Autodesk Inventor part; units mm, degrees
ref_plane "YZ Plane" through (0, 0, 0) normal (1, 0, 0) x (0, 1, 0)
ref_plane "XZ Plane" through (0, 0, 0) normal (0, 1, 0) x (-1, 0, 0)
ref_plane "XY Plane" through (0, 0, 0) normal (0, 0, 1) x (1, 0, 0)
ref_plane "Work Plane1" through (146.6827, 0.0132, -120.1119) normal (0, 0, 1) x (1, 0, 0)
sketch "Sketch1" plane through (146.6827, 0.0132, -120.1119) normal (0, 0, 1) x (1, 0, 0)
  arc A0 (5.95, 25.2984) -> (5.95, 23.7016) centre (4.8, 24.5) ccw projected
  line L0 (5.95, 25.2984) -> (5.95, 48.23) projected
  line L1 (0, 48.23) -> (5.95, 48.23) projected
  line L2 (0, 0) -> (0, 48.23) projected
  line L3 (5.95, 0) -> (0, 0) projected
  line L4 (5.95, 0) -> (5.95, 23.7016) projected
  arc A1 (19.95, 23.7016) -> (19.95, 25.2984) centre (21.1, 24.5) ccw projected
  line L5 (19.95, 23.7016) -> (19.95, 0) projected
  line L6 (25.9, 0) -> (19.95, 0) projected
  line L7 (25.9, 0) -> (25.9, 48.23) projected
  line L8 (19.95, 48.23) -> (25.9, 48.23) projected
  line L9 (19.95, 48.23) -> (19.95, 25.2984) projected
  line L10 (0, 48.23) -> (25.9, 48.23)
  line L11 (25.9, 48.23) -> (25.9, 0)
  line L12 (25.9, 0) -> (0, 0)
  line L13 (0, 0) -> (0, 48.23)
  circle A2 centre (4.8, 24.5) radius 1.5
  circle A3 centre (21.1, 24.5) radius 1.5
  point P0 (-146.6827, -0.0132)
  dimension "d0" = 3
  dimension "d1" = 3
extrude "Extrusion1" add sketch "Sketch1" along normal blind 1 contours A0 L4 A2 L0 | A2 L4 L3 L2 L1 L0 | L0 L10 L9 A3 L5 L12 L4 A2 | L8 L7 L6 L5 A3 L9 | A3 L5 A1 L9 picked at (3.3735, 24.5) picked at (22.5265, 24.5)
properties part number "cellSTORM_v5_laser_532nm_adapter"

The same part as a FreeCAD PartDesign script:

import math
import FreeCAD as App
import Part
import Sketcher


def add_polygon(sketch, points):
    """Adds a closed chain of lines whose ends are joined by coincident constraints."""
    first, n = sketch.GeometryCount, len(points)
    for a, b in zip(points, points[1:] + points[:1]):
        sketch.addGeometry(Part.LineSegment(App.Vector(*a, 0), App.Vector(*b, 0)), False)
    for i in range(n):
        sketch.addConstraint(Sketcher.Constraint("Coincident", first + i, 2, first + (i + 1) % n, 1))

doc = App.newDocument("Part")
body = doc.addObject("PartDesign::Body", "Body")

# Sketch on XY plane
sketch1 = body.newObject("Sketcher::SketchObject", "Sketch")
sketch1.AttachmentSupport = (doc.getObject("XY_Plane"), [""])
sketch1.MapMode = "FlatFace"
sketch1.AttachmentOffset = App.Placement(App.Vector(0, 0, -120.1119), App.Rotation())
add_polygon(sketch1, [(146.68, 0.01), (172.58, 0.01), (172.58, 48.24), (146.68, 48.24)])  # lines 0-3
sketch1.addGeometry(Part.ArcOfCircle(Part.Circle(App.Vector(151.48, 24.51, 0), App.Vector(0, 0, 1), 1.4), math.radians(35), math.radians(325)), False)  # 4
sketch1.addGeometry(Part.LineSegment(App.Vector(152.63, 25.31, 0), App.Vector(152.63, 25.48, 0)), False)  # 5
sketch1.addGeometry(Part.ArcOfCircle(Part.Circle(App.Vector(151.48, 24.51, 0), App.Vector(0, 0, 1), 1.5), math.radians(-40), math.radians(40)), False)  # 6
sketch1.addGeometry(Part.LineSegment(App.Vector(152.63, 23.55, 0), App.Vector(152.63, 23.71, 0)), False)  # 7
sketch1.addGeometry(Part.ArcOfCircle(Part.Circle(App.Vector(167.78, 24.51, 0), App.Vector(0, 0, 1), 1.5), math.radians(140), math.radians(220)), False)  # 8
sketch1.addGeometry(Part.LineSegment(App.Vector(166.63, 25.48, 0), App.Vector(166.63, 25.31, 0)), False)  # 9
sketch1.addGeometry(Part.ArcOfCircle(Part.Circle(App.Vector(167.78, 24.51, 0), App.Vector(0, 0, 1), 1.4), math.radians(-145), math.radians(145)), False)  # 10
sketch1.addGeometry(Part.LineSegment(App.Vector(166.63, 23.71, 0), App.Vector(166.63, 23.55, 0)), False)  # 11
sketch1.addConstraint([
    Sketcher.Constraint("Coincident", 4, 1, 5, 1),
    Sketcher.Constraint("Coincident", 5, 2, 6, 2),
    Sketcher.Constraint("Coincident", 6, 1, 7, 1),
    Sketcher.Constraint("Coincident", 7, 2, 4, 2),
    Sketcher.Constraint("Coincident", 8, 1, 9, 1),
    Sketcher.Constraint("Coincident", 9, 2, 10, 2),
    Sketcher.Constraint("Coincident", 10, 1, 11, 1),
    Sketcher.Constraint("Coincident", 11, 2, 8, 2),
    Sketcher.Constraint("Horizontal", 0),
    Sketcher.Constraint("Vertical", 1),
    Sketcher.Constraint("Horizontal", 2),
    Sketcher.Constraint("Vertical", 3),
    Sketcher.Constraint("Vertical", 5),
    Sketcher.Constraint("Vertical", 7),
    Sketcher.Constraint("Vertical", 9),
    Sketcher.Constraint("Vertical", 11),
    Sketcher.Constraint("Coincident", 6, 3, 4, 3),
    Sketcher.Constraint("Coincident", 10, 3, 8, 3),
    Sketcher.Constraint("Equal", 6, 8),
    Sketcher.Constraint("Equal", 4, 10),
    Sketcher.Constraint("Horizontal", 6, 3, 8, 3),
    Sketcher.Constraint("Horizontal", 5, 2, 8, 1),
    Sketcher.Constraint("Horizontal", 7, 2, 10, 1),
    Sketcher.Constraint("Vertical", 5, 2, 6, 1),
    Sketcher.Constraint("Radius", 6, 1.5),
    Sketcher.Constraint("Radius", 4, 1.4),
    Sketcher.Constraint("DistanceX", 0, 1, 0, 2, 25.9),
    Sketcher.Constraint("DistanceX", 5, 2, 8, 1, 14.0),
    Sketcher.Constraint("DistanceY", 1, 1, 1, 2, 48.23),
    Sketcher.Constraint("DistanceX", 4, 3, 8, 3, 16.3),
    Sketcher.Constraint("DistanceX", 8, 3, 0, 2, 4.8),
    Sketcher.Constraint("DistanceY", 0, 2, 8, 3, 24.5),
    Sketcher.Constraint("DistanceX", -1, 1, 4, 3, 151.4827),
    Sketcher.Constraint("DistanceY", -1, 1, 4, 3, 24.5132),
])
pad1 = body.newObject("PartDesign::Pad", "Pad")
pad1.Profile = sketch1
pad1.Length = 1

doc.recompute()
